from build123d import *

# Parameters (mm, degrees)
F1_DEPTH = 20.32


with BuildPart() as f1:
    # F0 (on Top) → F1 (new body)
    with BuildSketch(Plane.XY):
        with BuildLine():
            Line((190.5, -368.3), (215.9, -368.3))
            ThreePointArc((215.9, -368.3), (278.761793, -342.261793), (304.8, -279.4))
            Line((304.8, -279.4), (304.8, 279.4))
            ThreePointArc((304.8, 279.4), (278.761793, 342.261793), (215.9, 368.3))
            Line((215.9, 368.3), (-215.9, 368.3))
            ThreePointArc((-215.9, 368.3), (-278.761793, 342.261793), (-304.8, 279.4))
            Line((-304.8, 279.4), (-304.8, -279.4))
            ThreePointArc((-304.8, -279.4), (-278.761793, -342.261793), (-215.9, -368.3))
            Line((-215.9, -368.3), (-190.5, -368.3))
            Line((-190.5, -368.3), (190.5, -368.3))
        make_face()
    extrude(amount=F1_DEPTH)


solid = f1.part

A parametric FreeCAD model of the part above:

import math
import FreeCAD as App
import Part
import Sketcher
from FreeCAD import Vector
Q = App.Units.Quantity

doc = App.newDocument("Part")
body = doc.addObject("PartDesign::Body", "Body")

# Sketch on XY plane
sketch1 = body.newObject("Sketcher::SketchObject", "Sketch")
sketch1.AttachmentSupport = (doc.getObject("XY_Plane"), [""])
sketch1.MapMode = "FlatFace"
sketch1.addGeometry(Part.ArcOfCircle(Part.Circle(Vector(216, -279, 0), Vector(0, 0, 1), 89), math.radians(-90), math.radians(0)), False)
sketch1.addGeometry(Part.LineSegment(Vector(305, -279, 0), Vector(305, 279, 0)), False)
sketch1.addGeometry(Part.ArcOfCircle(Part.Circle(Vector(216, 279, 0), Vector(0, 0, 1), 89), math.radians(0), math.radians(90)), False)
sketch1.addGeometry(Part.LineSegment(Vector(216, 368, 0), Vector(-216, 368, 0)), False)
sketch1.addGeometry(Part.ArcOfCircle(Part.Circle(Vector(-216, 279, 0), Vector(0, 0, 1), 89), math.radians(90), math.radians(180)), False)
sketch1.addGeometry(Part.LineSegment(Vector(-305, 279, 0), Vector(-305, -279, 0)), False)
sketch1.addGeometry(Part.ArcOfCircle(Part.Circle(Vector(-216, -279, 0), Vector(0, 0, 1), 89), math.radians(180), math.radians(270)), False)
sketch1.addGeometry(Part.LineSegment(Vector(-216, -368, 0), Vector(216, -368, 0)), False)
sketch1.addConstraint(Sketcher.Constraint("Tangent", 0, 2, 1, 1))
sketch1.addConstraint(Sketcher.Constraint("Tangent", 1, 2, 2, 1))
sketch1.addConstraint(Sketcher.Constraint("Tangent", 2, 2, 3, 1))
sketch1.addConstraint(Sketcher.Constraint("Tangent", 3, 2, 4, 1))
sketch1.addConstraint(Sketcher.Constraint("Tangent", 4, 2, 5, 1))
sketch1.addConstraint(Sketcher.Constraint("Tangent", 5, 2, 6, 1))
sketch1.addConstraint(Sketcher.Constraint("Tangent", 6, 2, 7, 1))
sketch1.addConstraint(Sketcher.Constraint("Tangent", 7, 2, 0, 1))
sketch1.addConstraint(Sketcher.Constraint("Vertical", 1))
sketch1.addConstraint(Sketcher.Constraint("Horizontal", 3))
sketch1.addConstraint(Sketcher.Constraint("Vertical", 5))
sketch1.addConstraint(Sketcher.Constraint("Horizontal", 7))
sketch1.addConstraint(Sketcher.Constraint("Equal", 0, 2))
sketch1.addConstraint(Sketcher.Constraint("Equal", 2, 4))
sketch1.addConstraint(Sketcher.Constraint("Equal", 4, 6))
sketch1.addConstraint(Sketcher.Constraint("Symmetric", 0, 3, 4, 3, -1, 1))
sketch1.addConstraint(Sketcher.Constraint("Radius", 0, Q("3.5 in")))
sketch1.addConstraint(Sketcher.Constraint("DistanceX", 3, 2, 3, 1, Q("17 in")))
sketch1.addConstraint(Sketcher.Constraint("DistanceY", 1, 1, 1, 2, Q("22 in")))
pad1 = body.newObject("PartDesign::Pad", "Pad")
pad1.Profile = sketch1
pad1.Length = Q("0.8 in")

doc.recompute()
